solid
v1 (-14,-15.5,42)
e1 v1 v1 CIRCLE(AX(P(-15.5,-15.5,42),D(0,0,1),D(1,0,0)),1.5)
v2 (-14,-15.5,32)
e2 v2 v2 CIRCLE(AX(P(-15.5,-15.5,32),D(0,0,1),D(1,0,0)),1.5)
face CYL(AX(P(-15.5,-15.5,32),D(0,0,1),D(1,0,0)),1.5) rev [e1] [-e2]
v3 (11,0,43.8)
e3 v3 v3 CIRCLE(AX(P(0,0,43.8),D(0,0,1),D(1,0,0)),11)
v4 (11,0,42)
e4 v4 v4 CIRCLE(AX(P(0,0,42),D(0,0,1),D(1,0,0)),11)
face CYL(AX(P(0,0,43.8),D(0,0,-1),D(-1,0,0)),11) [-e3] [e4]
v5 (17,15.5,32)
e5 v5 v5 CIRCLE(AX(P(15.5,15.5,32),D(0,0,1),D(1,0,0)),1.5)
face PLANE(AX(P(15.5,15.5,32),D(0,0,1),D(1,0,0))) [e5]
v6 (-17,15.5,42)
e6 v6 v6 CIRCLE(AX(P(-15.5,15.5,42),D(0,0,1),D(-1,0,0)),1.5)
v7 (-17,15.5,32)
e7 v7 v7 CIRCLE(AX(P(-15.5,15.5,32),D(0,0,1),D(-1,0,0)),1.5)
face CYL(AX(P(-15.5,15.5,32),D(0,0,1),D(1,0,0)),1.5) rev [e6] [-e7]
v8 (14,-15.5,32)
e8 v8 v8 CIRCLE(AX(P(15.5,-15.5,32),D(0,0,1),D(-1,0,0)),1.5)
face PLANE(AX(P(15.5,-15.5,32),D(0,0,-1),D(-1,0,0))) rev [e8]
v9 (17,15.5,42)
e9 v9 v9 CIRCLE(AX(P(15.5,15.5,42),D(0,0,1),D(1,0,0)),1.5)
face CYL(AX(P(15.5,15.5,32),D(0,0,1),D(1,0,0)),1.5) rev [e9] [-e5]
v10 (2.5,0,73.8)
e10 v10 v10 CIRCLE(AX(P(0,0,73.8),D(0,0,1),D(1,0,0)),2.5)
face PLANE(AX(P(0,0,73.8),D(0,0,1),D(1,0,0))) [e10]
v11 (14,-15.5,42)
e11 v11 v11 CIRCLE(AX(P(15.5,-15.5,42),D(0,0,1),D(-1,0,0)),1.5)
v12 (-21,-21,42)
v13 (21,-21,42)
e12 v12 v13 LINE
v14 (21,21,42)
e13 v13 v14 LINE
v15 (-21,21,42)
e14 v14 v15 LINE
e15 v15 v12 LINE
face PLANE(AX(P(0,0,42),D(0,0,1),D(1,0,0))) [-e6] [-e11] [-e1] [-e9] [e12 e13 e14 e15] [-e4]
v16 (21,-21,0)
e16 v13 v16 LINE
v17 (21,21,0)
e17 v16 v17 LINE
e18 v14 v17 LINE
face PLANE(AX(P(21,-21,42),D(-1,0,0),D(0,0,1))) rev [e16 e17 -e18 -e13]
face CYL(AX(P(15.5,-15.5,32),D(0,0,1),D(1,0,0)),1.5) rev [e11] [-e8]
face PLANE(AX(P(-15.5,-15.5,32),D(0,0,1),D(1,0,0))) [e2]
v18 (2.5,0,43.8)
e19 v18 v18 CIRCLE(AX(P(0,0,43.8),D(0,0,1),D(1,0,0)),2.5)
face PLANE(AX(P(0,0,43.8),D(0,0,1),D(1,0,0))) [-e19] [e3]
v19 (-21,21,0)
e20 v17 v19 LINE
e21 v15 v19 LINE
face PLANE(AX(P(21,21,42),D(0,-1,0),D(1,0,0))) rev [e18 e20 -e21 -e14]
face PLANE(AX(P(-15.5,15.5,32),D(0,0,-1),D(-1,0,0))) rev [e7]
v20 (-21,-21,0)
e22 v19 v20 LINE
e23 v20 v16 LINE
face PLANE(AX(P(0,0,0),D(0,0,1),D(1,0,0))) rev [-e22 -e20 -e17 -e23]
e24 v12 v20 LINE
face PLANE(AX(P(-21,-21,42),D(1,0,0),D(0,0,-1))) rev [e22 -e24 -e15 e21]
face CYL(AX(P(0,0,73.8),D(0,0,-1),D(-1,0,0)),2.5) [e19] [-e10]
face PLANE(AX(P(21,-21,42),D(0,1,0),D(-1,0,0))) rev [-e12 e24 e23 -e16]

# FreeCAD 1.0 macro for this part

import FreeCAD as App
import Part
import Sketcher

doc = App.newDocument("Part")
body = doc.addObject("PartDesign::Body", "Body")

# Sketch on XY plane
sketch1 = body.newObject("Sketcher::SketchObject", "Sketch")
sketch1.AttachmentSupport = (doc.getObject("XY_Plane"), [""])
sketch1.MapMode = "FlatFace"
sketch1.addGeometry([
    Part.LineSegment(App.Vector(-21, 21, 0), App.Vector(-21, -21, 0)),
    Part.LineSegment(App.Vector(-21, -21, 0), App.Vector(21, -21, 0)),
    Part.LineSegment(App.Vector(21, -21, 0), App.Vector(21, 21, 0)),
    Part.LineSegment(App.Vector(21, 21, 0), App.Vector(-21, 21, 0)),
], False)
sketch1.addConstraint([
    Sketcher.Constraint("Coincident", 0, 2, 1, 1),
    Sketcher.Constraint("Coincident", 1, 2, 2, 1),
    Sketcher.Constraint("Coincident", 2, 2, 3, 1),
    Sketcher.Constraint("Coincident", 3, 2, 0, 1),
    Sketcher.Constraint("Vertical", 0),
    Sketcher.Constraint("Horizontal", 1),
    Sketcher.Constraint("Vertical", 2),
    Sketcher.Constraint("Horizontal", 3),
    Sketcher.Constraint("Symmetric", 0, 2, 2, 2, -1, 1),
    Sketcher.Constraint("Equal", 3, 0),
    Sketcher.Constraint("DistanceX", 1, 1, 1, 2, 42.0),
])
pad1 = body.newObject("PartDesign::Pad", "Pad")
pad1.Profile = sketch1
pad1.Length = 42

# Sketch on XY plane
sketch2 = body.newObject("Sketcher::SketchObject", "Sketch001")
sketch2.AttachmentSupport = (doc.getObject("XY_Plane"), [""])
sketch2.MapMode = "FlatFace"
sketch2.AttachmentOffset = App.Placement(App.Vector(0, 0, 42), App.Rotation())
sketch2.addGeometry([
    Part.Circle(App.Vector(15.5, 15.5, 0), App.Vector(0, 0, 1), 1.5),
    Part.Circle(App.Vector(-15.5, 15.5, 0), App.Vector(0, 0, 1), 1.5),
    Part.Circle(App.Vector(-15.5, -15.5, 0), App.Vector(0, 0, 1), 1.5),
    Part.Circle(App.Vector(15.5, -15.5, 0), App.Vector(0, 0, 1), 1.5),
], False)
sketch2.addConstraint([
    Sketcher.Constraint("Equal", 0, 1),
    Sketcher.Constraint("Equal", 1, 2),
    Sketcher.Constraint("Equal", 2, 3),
    Sketcher.Constraint("Symmetric", 0, 3, 2, 3, -1, 1),
    Sketcher.Constraint("Symmetric", 1, 3, 3, 3, -1, 1),
    Sketcher.Constraint("Symmetric", 0, 3, 1, 3, -2),
    Sketcher.Constraint("Diameter", 0, 3.0),
    Sketcher.Constraint("DistanceX", 1, 3, 0, 3, 31.0),
    Sketcher.Constraint("DistanceY", 2, 3, 1, 3, 31.0),
])
pocket1 = body.newObject("PartDesign::Pocket", "Pocket")
pocket1.Profile = sketch2
pocket1.Length = 10

# Sketch on XY plane
sketch3 = body.newObject("Sketcher::SketchObject", "Sketch002")
sketch3.AttachmentSupport = (doc.getObject("XY_Plane"), [""])
sketch3.MapMode = "FlatFace"
sketch3.AttachmentOffset = App.Placement(App.Vector(0, 0, 42), App.Rotation())
sketch3.addGeometry(Part.Circle(App.Vector(0, 0, 0), App.Vector(0, 0, 1), 11), False)
sketch3.addConstraint([
    Sketcher.Constraint("Coincident", 0, 3, -1, 1),
    Sketcher.Constraint("Diameter", 0, 22.0),
])
pad2 = body.newObject("PartDesign::Pad", "Pad001")
pad2.Profile = sketch3
pad2.Length = 1.8

# Sketch on XY plane
sketch4 = body.newObject("Sketcher::SketchObject", "Sketch003")
sketch4.AttachmentSupport = (doc.getObject("XY_Plane"), [""])
sketch4.MapMode = "FlatFace"
sketch4.AttachmentOffset = App.Placement(App.Vector(0, 0, 43.8), App.Rotation())
sketch4.addGeometry(Part.Circle(App.Vector(0, 0, 0), App.Vector(0, 0, 1), 2.5), False)
sketch4.addConstraint([
    Sketcher.Constraint("Coincident", 0, 3, -1, 1),
    Sketcher.Constraint("Diameter", 0, 5.0),
])
pad3 = body.newObject("PartDesign::Pad", "Pad002")
pad3.Profile = sketch4
pad3.Length = 30

doc.recompute()
